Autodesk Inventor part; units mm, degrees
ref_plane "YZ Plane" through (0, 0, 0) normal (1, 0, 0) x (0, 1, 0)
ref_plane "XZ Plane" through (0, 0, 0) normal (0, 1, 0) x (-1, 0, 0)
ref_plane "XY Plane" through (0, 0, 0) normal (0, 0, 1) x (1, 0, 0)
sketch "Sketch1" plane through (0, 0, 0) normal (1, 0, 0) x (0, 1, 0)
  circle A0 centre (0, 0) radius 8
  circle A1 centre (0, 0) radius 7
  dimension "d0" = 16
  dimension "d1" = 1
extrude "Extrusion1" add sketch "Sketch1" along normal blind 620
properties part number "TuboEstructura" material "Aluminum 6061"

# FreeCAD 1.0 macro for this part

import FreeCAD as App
import Part
import Sketcher
Q = App.Units.Quantity

doc = App.newDocument("Part")
body = doc.addObject("PartDesign::Body", "Body")

# Sketch on YZ plane
sketch1 = doc.addObject("Sketcher::SketchObject", "Sketch")
body.addObject(sketch1)
sketch1.AttachmentSupport = (doc.YZ_Plane, [""])
sketch1.MapMode = "FlatFace"
sketch1.addGeometry([
    Part.Circle(App.Vector(0, 0, 0), App.Vector(0, 0, 1), 8),
    Part.Circle(App.Vector(0, 0, 0), App.Vector(0, 0, 1), 7),
], False)
sketch1.addConstraint([
    Sketcher.Constraint("Coincident", 0, 3, -1, 1),
    Sketcher.Constraint("Coincident", 1, 3, -1, 1),
    Sketcher.Constraint("Diameter", 0, Q("16 mm")),
    Sketcher.Constraint("Diameter", 1, Q("14 mm")),
])
pad1 = doc.addObject("PartDesign::Pad", "Pad")
body.addObject(pad1)
pad1.Profile = sketch1
pad1.Length = 620

doc.recompute()
